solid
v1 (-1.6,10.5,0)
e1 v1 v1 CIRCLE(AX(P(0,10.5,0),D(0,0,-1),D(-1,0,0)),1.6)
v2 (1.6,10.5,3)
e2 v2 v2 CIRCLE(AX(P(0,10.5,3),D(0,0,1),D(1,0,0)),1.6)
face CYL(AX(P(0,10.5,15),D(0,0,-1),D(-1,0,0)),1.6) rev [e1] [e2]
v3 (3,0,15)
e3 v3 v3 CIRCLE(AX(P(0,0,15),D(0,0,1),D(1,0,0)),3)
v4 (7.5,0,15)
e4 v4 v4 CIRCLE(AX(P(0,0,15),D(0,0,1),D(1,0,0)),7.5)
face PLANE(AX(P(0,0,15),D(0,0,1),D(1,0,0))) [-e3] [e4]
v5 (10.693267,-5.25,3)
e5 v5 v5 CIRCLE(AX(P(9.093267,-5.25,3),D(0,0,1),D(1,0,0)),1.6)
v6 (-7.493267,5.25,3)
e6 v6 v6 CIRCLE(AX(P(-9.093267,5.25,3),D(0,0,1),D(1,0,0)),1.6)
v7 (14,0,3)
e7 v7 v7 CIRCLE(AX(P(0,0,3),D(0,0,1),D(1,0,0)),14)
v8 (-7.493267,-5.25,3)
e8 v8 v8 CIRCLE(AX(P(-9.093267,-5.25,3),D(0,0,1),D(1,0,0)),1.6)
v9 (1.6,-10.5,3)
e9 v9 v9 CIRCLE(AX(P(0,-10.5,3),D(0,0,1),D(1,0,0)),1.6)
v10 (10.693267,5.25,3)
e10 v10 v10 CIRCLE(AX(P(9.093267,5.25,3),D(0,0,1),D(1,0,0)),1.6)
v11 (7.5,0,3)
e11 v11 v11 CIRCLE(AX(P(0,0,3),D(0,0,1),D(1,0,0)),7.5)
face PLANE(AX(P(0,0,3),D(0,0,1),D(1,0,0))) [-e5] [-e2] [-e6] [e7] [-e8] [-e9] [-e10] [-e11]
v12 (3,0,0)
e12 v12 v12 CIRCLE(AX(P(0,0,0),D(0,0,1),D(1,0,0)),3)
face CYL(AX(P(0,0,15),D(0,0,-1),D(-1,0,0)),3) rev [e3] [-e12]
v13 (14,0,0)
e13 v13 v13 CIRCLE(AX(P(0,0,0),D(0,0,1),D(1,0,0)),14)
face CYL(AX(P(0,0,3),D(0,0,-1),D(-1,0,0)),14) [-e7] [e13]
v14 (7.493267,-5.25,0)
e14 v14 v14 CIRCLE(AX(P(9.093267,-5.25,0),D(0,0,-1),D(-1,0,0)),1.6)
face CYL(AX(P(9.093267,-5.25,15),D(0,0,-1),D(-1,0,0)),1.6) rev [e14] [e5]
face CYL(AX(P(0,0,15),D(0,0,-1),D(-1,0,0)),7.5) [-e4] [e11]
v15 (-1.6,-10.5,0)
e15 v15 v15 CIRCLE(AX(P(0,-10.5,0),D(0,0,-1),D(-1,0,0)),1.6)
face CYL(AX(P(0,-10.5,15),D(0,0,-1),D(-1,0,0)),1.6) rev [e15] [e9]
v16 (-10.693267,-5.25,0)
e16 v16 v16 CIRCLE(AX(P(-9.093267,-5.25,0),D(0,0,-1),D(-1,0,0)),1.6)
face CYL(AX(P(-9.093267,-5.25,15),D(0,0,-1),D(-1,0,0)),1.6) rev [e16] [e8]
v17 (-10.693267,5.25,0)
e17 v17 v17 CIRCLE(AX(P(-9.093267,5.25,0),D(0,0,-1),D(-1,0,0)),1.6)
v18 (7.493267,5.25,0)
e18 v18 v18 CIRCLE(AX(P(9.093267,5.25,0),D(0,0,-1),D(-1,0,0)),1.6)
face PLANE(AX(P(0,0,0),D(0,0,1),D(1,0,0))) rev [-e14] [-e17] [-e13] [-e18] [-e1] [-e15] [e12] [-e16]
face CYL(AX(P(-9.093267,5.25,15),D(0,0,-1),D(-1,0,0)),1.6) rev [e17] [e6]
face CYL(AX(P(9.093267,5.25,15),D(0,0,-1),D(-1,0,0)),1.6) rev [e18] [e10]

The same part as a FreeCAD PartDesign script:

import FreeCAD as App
import Part
import Sketcher

doc = App.newDocument("Part")
body = doc.addObject("PartDesign::Body", "Body")

sketch1 = body.newObject("Sketcher::SketchObject", "Sketch")
sketch1.AttachmentSupport = (doc.getObject("XY_Plane"), [""])
sketch1.MapMode = "FlatFace"
sketch1.addGeometry(Part.Circle(App.Vector(0, 0, 0), App.Vector(0, 0, 1), 14), False)
sketch1.addConstraint([
    Sketcher.Constraint("Coincident", 0, 3, -1, 1),
    Sketcher.Constraint("Diameter", 0, 28.0),
])
pad1 = body.newObject("PartDesign::Pad", "Pad")
pad1.Profile = sketch1
pad1.Length = 3

sketch2 = body.newObject("Sketcher::SketchObject", "Sketch001")
sketch2.AttachmentSupport = (doc.getObject("XY_Plane"), [""])
sketch2.MapMode = "FlatFace"
sketch2.AttachmentOffset = App.Placement(App.Vector(0, 0, 3), App.Rotation())
sketch2.addGeometry([
    Part.Circle(App.Vector(0, 0, 0), App.Vector(0, 0, 1), 7.5),
    Part.Circle(App.Vector(0, 0, 0), App.Vector(0, 0, 1), 3),
], False)
sketch2.addConstraint([
    Sketcher.Constraint("Coincident", 0, 3, -1, 1),
    Sketcher.Constraint("Coincident", 1, 3, -1, 1),
    Sketcher.Constraint("Diameter", 0, 15.0),
    Sketcher.Constraint("Diameter", 1, 6.0),
])
pad2 = body.newObject("PartDesign::Pad", "Pad001")
pad2.Profile = sketch2
pad2.Length = 12

sketch3 = body.newObject("Sketcher::SketchObject", "Sketch002")
sketch3.AttachmentSupport = (doc.getObject("XY_Plane"), [""])
sketch3.MapMode = "FlatFace"
sketch3.AttachmentOffset = App.Placement(App.Vector(0, 0, 3), App.Rotation())
sketch3.addGeometry(Part.Circle(App.Vector(0, 0, 0), App.Vector(0, 0, 1), 3), False)
sketch3.addConstraint([
    Sketcher.Constraint("Coincident", 0, 3, -1, 1),
    Sketcher.Constraint("Diameter", 0, 6.0),
])
pocket1 = body.newObject("PartDesign::Pocket", "Pocket")
pocket1.Profile = sketch3
pocket1.Type = "ThroughAll"

sketch4 = body.newObject("Sketcher::SketchObject", "Sketch003")
sketch4.AttachmentSupport = (doc.getObject("XY_Plane"), [""])
sketch4.MapMode = "FlatFace"
sketch4.addGeometry([
    Part.Circle(App.Vector(9.1, -5.2, 0), App.Vector(0, 0, 1), 1.6),
    Part.Circle(App.Vector(-9.1, 5.2, 0), App.Vector(0, 0, 1), 1.6),
    Part.Circle(App.Vector(0, -10.5, 0), App.Vector(0, 0, 1), 1.6),
    Part.Circle(App.Vector(-9.1, -5.2, 0), App.Vector(0, 0, 1), 1.6),
    Part.Circle(App.Vector(0, 10.5, 0), App.Vector(0, 0, 1), 1.6),
    Part.Circle(App.Vector(9.1, 5.2, 0), App.Vector(0, 0, 1), 1.6),
], False)
sketch4.addConstraint([
    Sketcher.Constraint("Equal", 0, 1),
    Sketcher.Constraint("Equal", 1, 2),
    Sketcher.Constraint("Equal", 2, 3),
    Sketcher.Constraint("Equal", 3, 4),
    Sketcher.Constraint("Equal", 4, 5),
    Sketcher.Constraint("Symmetric", 0, 3, 1, 3, -1, 1),
    Sketcher.Constraint("Symmetric", 2, 3, 4, 3, -1, 1),
    Sketcher.Constraint("Symmetric", 3, 3, 5, 3, -1, 1),
    Sketcher.Constraint("Symmetric", 0, 3, 3, 3, -2),
    Sketcher.Constraint("PointOnObject", 2, 3, -2),
    Sketcher.Constraint("Diameter", 0, 3.2),
    Sketcher.Constraint("DistanceY", 2, 3, 4, 3, 21.0),
    Sketcher.Constraint("DistanceY", 0, 3, 1, 3, 10.5),
    Sketcher.Constraint("DistanceX", -1, 1, 0, 3, 9.093267),
])
pocket2 = body.newObject("PartDesign::Pocket", "Pocket001")
pocket2.Profile = sketch4
pocket2.Type = "ThroughAll"
pocket2.Reversed = True

doc.recompute()
